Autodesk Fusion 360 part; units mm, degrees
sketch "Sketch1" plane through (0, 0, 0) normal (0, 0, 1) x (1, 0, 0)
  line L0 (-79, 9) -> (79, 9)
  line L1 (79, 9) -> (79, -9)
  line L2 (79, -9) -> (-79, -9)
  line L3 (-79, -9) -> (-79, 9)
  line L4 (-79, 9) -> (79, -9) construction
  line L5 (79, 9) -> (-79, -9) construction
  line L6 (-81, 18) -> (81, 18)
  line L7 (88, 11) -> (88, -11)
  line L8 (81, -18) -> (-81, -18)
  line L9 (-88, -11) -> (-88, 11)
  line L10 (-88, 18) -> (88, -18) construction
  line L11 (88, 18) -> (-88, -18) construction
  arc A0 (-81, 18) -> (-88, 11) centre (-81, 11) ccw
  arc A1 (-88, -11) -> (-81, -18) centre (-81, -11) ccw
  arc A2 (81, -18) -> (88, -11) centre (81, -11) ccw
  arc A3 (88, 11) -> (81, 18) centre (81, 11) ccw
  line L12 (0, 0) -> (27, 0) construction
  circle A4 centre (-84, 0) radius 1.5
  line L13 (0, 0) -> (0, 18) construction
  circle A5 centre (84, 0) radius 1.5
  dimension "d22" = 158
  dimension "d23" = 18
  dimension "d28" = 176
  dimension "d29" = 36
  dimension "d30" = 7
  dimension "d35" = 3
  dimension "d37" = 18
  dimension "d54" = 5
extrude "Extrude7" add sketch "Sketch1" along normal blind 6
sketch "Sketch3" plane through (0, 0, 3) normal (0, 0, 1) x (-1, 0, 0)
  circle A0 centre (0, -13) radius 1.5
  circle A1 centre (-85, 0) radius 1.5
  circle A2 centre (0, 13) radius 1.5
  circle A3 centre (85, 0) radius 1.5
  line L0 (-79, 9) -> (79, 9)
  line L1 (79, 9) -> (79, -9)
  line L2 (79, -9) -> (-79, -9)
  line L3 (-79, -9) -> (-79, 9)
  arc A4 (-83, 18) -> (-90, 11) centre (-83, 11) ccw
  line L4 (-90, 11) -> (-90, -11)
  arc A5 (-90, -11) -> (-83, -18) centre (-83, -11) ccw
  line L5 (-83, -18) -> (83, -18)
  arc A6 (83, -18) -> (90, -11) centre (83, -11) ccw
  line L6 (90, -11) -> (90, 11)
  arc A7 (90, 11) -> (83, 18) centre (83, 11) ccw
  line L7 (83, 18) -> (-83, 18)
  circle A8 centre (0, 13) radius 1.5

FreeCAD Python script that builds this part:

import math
import FreeCAD as App
import Part
import Sketcher
from FreeCAD import Vector

doc = App.newDocument("Part")
body = doc.addObject("PartDesign::Body", "Body")

# Sketch on XY plane
sketch1 = body.newObject("Sketcher::SketchObject", "Sketch")
sketch1.AttachmentSupport = (doc.getObject("XY_Plane"), [""])
sketch1.MapMode = "FlatFace"
sketch1.addGeometry(Part.LineSegment(Vector(81, 18, 0), Vector(-81, 18, 0)), False)
sketch1.addGeometry(Part.ArcOfCircle(Part.Circle(Vector(-81, 11, 0), Vector(0, 0, 1), 7), math.radians(90), math.radians(180)), False)
sketch1.addGeometry(Part.LineSegment(Vector(-88, 11, 0), Vector(-88, -11, 0)), False)
sketch1.addGeometry(Part.ArcOfCircle(Part.Circle(Vector(-81, -11, 0), Vector(0, 0, 1), 7), math.radians(180), math.radians(270)), False)
sketch1.addGeometry(Part.LineSegment(Vector(-81, -18, 0), Vector(81, -18, 0)), False)
sketch1.addGeometry(Part.ArcOfCircle(Part.Circle(Vector(81, -11, 0), Vector(0, 0, 1), 7), math.radians(-90), math.radians(0)), False)
sketch1.addGeometry(Part.LineSegment(Vector(88, -11, 0), Vector(88, 11, 0)), False)
sketch1.addGeometry(Part.ArcOfCircle(Part.Circle(Vector(81, 11, 0), Vector(0, 0, 1), 7), math.radians(0), math.radians(90)), False)
sketch1.addGeometry(Part.Circle(Vector(-84, 0, 0), Vector(0, 0, 1), 1.5), False)
sketch1.addGeometry(Part.LineSegment(Vector(-79, -9, 0), Vector(-79, 9, 0)), False)
sketch1.addGeometry(Part.LineSegment(Vector(-79, 9, 0), Vector(79, 9, 0)), False)
sketch1.addGeometry(Part.LineSegment(Vector(79, 9, 0), Vector(79, -9, 0)), False)
sketch1.addGeometry(Part.LineSegment(Vector(79, -9, 0), Vector(-79, -9, 0)), False)
sketch1.addGeometry(Part.Circle(Vector(84, 0, 0), Vector(0, 0, 1), 1.5), False)
sketch1.addConstraint(Sketcher.Constraint("Tangent", 0, 2, 1, 1))
sketch1.addConstraint(Sketcher.Constraint("Tangent", 1, 2, 2, 1))
sketch1.addConstraint(Sketcher.Constraint("Tangent", 2, 2, 3, 1))
sketch1.addConstraint(Sketcher.Constraint("Tangent", 3, 2, 4, 1))
sketch1.addConstraint(Sketcher.Constraint("Tangent", 4, 2, 5, 1))
sketch1.addConstraint(Sketcher.Constraint("Tangent", 5, 2, 6, 1))
sketch1.addConstraint(Sketcher.Constraint("Tangent", 6, 2, 7, 1))
sketch1.addConstraint(Sketcher.Constraint("Tangent", 7, 2, 0, 1))
sketch1.addConstraint(Sketcher.Constraint("Coincident", 9, 2, 10, 1))
sketch1.addConstraint(Sketcher.Constraint("Coincident", 10, 2, 11, 1))
sketch1.addConstraint(Sketcher.Constraint("Coincident", 11, 2, 12, 1))
sketch1.addConstraint(Sketcher.Constraint("Coincident", 12, 2, 9, 1))
sketch1.addConstraint(Sketcher.Constraint("Horizontal", 0))
sketch1.addConstraint(Sketcher.Constraint("Vertical", 2))
sketch1.addConstraint(Sketcher.Constraint("Horizontal", 4))
sketch1.addConstraint(Sketcher.Constraint("Vertical", 6))
sketch1.addConstraint(Sketcher.Constraint("Vertical", 9))
sketch1.addConstraint(Sketcher.Constraint("Horizontal", 10))
sketch1.addConstraint(Sketcher.Constraint("Vertical", 11))
sketch1.addConstraint(Sketcher.Constraint("Horizontal", 12))
sketch1.addConstraint(Sketcher.Constraint("Equal", 1, 3))
sketch1.addConstraint(Sketcher.Constraint("Equal", 3, 5))
sketch1.addConstraint(Sketcher.Constraint("Equal", 5, 7))
sketch1.addConstraint(Sketcher.Constraint("Equal", 8, 13))
sketch1.addConstraint(Sketcher.Constraint("Symmetric", 1, 3, 5, 3, -1, 1))
sketch1.addConstraint(Sketcher.Constraint("Symmetric", 8, 3, 13, 3, -1, 1))
sketch1.addConstraint(Sketcher.Constraint("Symmetric", 9, 2, 11, 2, -1, 1))
sketch1.addConstraint(Sketcher.Constraint("PointOnObject", 8, 3, -1))
sketch1.addConstraint(Sketcher.Constraint("Diameter", 8, 3.0))
sketch1.addConstraint(Sketcher.Constraint("Radius", 1, 7.0))
sketch1.addConstraint(Sketcher.Constraint("DistanceX", 10, 1, 10, 2, 158.0))
sketch1.addConstraint(Sketcher.Constraint("DistanceY", 9, 1, 9, 2, 18.0))
sketch1.addConstraint(Sketcher.Constraint("DistanceY", -1, 1, 0, 2, 18.0))
sketch1.addConstraint(Sketcher.Constraint("DistanceX", 8, 3, 1, 3, 3.0))
sketch1.addConstraint(Sketcher.Constraint("DistanceX", 8, 3, 9, 2, 5.0))
pad1 = body.newObject("PartDesign::Pad", "Pad")
pad1.Profile = sketch1
pad1.Length = 6

doc.recompute()
